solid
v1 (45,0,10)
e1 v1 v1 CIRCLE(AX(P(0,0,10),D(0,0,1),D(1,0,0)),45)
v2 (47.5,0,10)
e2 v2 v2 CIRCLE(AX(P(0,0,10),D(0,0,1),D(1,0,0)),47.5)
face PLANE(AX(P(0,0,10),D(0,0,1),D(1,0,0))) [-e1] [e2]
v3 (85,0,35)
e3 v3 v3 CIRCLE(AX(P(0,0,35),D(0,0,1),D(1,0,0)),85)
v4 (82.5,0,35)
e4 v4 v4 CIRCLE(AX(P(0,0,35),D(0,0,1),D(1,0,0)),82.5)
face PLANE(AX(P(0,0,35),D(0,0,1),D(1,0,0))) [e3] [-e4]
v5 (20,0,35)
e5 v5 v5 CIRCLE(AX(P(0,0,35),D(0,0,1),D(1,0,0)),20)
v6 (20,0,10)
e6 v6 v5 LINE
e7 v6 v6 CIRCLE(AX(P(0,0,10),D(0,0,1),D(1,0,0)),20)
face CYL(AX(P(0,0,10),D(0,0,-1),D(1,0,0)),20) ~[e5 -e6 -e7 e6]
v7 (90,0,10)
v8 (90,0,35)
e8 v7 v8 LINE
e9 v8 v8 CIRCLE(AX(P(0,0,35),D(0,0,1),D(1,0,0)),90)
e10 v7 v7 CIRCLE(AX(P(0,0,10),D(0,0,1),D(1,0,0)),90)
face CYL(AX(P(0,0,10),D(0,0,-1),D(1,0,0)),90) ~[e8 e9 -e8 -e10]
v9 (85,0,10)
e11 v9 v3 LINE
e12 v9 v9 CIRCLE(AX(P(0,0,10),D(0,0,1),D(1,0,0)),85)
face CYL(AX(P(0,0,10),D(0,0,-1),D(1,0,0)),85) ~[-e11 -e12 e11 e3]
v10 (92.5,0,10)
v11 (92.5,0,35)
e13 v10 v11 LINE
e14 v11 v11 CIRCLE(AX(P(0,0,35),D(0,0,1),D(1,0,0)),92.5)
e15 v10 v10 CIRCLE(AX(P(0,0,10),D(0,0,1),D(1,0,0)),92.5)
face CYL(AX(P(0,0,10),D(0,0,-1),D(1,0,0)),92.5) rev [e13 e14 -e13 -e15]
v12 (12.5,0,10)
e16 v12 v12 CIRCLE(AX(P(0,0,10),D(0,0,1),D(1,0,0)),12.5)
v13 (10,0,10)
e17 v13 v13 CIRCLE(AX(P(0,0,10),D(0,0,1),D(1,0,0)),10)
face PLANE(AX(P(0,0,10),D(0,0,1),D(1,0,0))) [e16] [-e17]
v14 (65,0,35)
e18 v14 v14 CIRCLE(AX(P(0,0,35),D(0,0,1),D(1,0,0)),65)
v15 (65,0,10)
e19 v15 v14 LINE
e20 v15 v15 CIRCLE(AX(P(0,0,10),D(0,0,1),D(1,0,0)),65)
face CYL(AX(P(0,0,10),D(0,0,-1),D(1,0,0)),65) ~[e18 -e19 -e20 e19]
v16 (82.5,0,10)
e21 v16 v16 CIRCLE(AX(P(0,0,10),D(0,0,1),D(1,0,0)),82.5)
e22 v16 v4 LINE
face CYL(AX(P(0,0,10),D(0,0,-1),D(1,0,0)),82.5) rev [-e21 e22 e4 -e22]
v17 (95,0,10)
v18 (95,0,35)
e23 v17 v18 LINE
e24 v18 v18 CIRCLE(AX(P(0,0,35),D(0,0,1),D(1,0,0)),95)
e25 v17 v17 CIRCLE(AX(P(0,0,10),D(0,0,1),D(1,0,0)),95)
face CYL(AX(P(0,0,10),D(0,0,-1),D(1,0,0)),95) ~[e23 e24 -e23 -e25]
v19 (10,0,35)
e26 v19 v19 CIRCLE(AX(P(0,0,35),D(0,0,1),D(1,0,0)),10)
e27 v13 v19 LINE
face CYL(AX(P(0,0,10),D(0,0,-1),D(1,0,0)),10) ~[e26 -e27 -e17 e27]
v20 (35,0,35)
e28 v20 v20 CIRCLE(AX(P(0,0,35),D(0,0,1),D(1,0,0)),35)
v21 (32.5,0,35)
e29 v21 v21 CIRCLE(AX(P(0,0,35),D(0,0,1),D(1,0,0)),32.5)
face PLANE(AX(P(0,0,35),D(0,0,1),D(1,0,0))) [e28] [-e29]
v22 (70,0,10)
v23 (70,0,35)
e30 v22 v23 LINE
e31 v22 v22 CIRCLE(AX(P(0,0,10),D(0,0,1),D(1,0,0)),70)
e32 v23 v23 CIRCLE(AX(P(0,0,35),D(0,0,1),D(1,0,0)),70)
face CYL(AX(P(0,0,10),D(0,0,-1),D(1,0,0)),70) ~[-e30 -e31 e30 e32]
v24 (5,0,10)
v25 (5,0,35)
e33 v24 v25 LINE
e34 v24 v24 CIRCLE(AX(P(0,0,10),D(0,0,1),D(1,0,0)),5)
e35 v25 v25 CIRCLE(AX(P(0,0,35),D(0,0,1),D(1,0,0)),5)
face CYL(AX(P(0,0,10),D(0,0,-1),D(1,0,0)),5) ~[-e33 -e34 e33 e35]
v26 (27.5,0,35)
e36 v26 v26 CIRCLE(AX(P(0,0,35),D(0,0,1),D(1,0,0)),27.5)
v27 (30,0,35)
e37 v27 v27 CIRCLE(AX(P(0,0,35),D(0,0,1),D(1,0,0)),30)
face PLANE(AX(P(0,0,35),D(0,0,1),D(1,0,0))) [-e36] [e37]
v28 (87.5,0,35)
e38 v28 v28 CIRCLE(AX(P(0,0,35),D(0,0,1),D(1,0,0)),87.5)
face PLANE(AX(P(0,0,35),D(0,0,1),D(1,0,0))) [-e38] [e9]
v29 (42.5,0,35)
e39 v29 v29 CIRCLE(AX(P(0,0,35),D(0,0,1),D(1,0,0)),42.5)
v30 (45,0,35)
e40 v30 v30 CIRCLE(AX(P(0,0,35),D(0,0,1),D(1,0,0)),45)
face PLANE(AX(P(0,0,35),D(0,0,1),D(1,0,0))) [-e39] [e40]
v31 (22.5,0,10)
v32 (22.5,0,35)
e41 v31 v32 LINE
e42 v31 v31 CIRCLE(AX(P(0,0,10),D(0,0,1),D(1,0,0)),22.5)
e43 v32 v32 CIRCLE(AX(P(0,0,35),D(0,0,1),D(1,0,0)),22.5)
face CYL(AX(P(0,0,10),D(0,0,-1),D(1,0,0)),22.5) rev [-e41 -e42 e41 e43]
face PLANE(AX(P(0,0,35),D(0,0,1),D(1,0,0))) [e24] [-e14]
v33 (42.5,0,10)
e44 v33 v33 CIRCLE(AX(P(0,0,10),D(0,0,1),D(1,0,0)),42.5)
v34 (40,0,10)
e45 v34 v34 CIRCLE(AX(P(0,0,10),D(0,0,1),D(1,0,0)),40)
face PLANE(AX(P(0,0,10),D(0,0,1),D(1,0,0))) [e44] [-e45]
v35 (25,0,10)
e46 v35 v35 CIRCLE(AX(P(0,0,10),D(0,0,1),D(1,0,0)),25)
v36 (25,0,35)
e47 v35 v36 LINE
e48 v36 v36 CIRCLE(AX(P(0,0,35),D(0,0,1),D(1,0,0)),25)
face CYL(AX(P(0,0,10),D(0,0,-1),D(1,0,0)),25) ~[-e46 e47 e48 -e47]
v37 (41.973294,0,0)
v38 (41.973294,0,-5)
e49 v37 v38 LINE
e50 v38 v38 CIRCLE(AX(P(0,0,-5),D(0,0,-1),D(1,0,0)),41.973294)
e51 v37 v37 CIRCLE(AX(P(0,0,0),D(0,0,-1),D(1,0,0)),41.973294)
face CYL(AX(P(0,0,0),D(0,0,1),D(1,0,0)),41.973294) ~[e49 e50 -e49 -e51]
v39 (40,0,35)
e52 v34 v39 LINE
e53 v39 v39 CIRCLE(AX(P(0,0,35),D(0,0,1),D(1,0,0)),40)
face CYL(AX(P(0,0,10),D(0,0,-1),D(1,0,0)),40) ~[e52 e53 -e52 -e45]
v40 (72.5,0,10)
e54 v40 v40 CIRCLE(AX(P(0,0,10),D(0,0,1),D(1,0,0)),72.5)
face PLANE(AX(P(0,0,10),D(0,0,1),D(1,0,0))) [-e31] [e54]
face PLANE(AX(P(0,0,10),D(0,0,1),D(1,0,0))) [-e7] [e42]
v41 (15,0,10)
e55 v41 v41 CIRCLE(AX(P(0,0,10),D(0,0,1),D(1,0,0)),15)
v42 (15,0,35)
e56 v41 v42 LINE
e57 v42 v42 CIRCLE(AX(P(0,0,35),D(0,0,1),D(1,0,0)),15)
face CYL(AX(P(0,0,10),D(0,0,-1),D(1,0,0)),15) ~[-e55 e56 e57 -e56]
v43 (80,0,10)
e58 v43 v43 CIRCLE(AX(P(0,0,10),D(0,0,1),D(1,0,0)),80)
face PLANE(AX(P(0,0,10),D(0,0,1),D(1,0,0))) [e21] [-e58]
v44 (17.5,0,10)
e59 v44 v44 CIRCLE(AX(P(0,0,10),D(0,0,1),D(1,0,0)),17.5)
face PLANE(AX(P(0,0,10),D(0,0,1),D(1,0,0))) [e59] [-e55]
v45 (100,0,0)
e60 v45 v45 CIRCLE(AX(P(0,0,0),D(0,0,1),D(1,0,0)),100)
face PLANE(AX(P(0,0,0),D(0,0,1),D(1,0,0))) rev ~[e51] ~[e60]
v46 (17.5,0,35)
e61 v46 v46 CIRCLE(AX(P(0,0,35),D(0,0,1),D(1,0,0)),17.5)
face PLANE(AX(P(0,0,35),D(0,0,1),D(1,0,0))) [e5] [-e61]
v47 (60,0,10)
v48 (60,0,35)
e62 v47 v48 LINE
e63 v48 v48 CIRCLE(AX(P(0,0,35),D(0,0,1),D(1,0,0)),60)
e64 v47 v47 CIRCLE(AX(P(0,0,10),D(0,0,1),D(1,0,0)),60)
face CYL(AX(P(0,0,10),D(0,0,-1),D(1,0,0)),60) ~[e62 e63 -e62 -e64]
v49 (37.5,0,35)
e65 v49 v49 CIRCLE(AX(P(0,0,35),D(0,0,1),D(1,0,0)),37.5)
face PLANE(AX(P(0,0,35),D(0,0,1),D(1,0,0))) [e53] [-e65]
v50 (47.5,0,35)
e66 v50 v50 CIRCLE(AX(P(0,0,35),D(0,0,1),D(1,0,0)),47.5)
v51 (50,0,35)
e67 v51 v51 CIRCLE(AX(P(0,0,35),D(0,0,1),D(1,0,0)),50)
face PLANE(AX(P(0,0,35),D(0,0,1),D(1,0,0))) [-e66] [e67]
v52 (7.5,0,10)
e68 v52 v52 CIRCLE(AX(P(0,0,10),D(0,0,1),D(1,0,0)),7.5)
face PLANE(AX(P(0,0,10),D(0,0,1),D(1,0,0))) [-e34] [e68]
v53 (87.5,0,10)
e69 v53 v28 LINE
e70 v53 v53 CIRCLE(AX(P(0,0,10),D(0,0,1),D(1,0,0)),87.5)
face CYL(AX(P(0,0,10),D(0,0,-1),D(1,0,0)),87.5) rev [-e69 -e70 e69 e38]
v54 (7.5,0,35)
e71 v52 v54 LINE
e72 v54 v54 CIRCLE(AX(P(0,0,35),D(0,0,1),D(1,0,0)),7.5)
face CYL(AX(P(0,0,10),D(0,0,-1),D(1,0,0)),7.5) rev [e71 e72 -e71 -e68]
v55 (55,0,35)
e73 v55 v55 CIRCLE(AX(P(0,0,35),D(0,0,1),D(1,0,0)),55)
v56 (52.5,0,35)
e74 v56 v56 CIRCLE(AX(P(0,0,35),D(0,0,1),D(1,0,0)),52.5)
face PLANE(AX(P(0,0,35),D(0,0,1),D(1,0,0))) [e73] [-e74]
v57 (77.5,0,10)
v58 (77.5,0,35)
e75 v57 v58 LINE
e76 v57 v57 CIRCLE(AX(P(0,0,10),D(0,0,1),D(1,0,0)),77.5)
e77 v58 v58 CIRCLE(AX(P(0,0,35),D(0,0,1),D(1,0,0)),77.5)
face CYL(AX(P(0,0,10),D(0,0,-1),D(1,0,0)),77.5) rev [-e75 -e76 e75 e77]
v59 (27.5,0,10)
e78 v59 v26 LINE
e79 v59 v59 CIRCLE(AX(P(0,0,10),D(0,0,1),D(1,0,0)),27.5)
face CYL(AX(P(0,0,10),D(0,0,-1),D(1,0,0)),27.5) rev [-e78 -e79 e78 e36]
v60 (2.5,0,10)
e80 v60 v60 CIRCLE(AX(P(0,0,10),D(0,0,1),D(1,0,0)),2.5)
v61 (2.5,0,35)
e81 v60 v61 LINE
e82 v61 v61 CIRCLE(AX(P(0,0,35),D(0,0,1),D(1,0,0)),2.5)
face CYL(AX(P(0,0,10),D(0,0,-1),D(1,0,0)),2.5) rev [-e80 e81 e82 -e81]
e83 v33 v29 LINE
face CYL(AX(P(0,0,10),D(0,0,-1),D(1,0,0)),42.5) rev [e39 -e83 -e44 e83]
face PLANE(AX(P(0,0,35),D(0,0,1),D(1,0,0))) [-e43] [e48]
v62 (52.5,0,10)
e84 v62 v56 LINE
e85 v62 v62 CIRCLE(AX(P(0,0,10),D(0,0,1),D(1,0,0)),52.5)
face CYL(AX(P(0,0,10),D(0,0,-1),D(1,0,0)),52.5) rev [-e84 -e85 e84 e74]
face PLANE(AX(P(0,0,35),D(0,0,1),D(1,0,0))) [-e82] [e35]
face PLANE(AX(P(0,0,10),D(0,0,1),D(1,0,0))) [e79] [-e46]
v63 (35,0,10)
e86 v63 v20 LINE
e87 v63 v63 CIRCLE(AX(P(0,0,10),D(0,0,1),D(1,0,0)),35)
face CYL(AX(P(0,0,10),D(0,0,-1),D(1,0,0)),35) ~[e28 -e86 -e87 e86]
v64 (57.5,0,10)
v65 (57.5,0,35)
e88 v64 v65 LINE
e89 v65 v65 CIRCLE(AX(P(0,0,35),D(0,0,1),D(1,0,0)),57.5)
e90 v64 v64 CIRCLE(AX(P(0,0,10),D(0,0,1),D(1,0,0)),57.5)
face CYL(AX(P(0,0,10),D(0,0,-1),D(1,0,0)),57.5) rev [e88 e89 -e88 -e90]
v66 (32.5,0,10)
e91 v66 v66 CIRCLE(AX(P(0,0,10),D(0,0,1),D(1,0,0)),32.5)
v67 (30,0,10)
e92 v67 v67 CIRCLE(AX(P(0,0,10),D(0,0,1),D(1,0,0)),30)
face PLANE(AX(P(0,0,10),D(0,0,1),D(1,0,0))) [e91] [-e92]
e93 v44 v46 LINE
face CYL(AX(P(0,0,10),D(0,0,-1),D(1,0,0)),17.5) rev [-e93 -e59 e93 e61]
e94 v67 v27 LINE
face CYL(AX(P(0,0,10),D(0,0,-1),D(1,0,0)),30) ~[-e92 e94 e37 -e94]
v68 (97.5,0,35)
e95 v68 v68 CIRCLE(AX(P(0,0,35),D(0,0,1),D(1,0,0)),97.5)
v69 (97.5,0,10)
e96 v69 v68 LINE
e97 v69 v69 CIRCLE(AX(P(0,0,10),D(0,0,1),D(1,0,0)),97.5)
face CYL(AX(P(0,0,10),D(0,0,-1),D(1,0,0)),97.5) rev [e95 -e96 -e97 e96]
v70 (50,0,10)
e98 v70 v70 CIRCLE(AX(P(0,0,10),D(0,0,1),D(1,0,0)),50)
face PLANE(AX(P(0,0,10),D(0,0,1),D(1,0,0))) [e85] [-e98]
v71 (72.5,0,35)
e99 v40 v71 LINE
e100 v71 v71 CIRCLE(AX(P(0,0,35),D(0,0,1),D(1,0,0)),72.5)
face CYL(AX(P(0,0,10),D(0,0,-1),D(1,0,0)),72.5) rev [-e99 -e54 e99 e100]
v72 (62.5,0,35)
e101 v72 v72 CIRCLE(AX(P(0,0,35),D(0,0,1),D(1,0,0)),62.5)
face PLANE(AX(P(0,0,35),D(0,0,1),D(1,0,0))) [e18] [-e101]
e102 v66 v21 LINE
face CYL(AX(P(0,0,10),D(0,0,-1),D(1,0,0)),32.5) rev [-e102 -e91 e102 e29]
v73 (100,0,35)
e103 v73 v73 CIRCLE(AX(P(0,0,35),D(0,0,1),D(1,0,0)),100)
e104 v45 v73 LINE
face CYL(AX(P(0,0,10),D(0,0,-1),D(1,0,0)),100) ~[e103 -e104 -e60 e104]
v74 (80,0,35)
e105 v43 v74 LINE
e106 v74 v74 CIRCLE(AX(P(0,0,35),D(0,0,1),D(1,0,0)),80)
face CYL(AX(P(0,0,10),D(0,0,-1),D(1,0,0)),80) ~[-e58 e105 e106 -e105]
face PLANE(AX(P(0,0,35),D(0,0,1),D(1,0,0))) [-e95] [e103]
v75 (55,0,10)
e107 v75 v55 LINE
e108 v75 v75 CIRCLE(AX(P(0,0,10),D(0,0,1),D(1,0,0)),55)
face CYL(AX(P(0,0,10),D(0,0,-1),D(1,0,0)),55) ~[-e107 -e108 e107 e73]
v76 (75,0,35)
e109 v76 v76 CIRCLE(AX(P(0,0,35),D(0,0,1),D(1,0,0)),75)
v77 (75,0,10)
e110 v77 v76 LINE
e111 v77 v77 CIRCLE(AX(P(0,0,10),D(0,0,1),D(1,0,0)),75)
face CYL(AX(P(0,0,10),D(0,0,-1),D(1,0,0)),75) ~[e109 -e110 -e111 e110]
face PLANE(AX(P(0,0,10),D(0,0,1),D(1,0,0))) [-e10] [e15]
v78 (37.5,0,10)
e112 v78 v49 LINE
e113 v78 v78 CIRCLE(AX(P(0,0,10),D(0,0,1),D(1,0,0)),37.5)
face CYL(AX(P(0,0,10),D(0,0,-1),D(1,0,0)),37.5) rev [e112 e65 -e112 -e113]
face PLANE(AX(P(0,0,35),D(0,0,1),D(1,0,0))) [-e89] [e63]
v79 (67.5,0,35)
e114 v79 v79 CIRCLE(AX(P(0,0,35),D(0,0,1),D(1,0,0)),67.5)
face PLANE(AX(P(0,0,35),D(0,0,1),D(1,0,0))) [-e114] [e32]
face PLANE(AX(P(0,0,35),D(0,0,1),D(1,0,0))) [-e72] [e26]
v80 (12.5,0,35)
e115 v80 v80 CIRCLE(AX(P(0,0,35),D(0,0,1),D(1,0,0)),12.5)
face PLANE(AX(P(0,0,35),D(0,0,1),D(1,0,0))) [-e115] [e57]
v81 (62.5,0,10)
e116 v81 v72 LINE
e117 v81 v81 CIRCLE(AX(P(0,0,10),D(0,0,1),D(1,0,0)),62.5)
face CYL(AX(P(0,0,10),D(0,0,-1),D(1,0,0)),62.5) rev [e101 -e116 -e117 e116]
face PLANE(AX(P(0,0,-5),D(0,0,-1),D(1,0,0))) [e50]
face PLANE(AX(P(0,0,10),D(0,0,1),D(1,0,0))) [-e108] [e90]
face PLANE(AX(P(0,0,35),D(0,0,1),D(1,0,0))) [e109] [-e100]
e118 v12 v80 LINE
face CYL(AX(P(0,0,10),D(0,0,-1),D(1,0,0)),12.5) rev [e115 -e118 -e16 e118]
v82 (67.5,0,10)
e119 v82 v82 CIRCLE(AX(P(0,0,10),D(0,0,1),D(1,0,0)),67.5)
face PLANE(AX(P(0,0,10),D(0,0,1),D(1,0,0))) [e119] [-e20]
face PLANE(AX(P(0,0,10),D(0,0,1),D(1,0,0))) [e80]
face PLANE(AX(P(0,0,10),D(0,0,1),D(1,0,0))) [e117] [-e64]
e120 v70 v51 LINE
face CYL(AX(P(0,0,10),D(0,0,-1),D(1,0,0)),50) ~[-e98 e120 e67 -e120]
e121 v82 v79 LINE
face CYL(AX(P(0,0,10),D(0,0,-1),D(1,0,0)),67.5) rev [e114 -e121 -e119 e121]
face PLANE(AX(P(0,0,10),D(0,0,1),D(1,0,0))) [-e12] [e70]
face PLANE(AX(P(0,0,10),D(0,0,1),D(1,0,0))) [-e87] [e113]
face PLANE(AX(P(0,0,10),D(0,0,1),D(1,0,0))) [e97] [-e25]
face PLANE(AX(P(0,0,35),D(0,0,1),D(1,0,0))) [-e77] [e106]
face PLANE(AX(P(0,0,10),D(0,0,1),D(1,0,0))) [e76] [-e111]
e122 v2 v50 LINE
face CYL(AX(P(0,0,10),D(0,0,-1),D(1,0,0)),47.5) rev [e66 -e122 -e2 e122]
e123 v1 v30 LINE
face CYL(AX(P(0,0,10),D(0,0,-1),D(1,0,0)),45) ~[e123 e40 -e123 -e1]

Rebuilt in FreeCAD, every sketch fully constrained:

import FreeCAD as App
import Part
import Sketcher
from FreeCAD import Vector

doc = App.newDocument("Part")
body = doc.addObject("PartDesign::Body", "Body")

# Sketch on XY plane
sketch1 = body.newObject("Sketcher::SketchObject", "Sketch")
sketch1.AttachmentSupport = (doc.getObject("XY_Plane"), [""])
sketch1.MapMode = "FlatFace"
sketch1.addGeometry(Part.Circle(Vector(0, 0, 0), Vector(0, 0, 1), 100), False)
sketch1.addConstraint([
    Sketcher.Constraint("Coincident", 0, 3, -1, 1),
    Sketcher.Constraint("Diameter", 0, 200.0),
])
pad1 = body.newObject("PartDesign::Pad", "Pad")
pad1.Profile = sketch1
pad1.Length = 10

# Sketch on XY plane
sketch2 = body.newObject("Sketcher::SketchObject", "Sketch001")
sketch2.AttachmentSupport = (doc.getObject("XY_Plane"), [""])
sketch2.MapMode = "FlatFace"
sketch2.AttachmentOffset = App.Placement(Vector(0, 0, 10), App.Rotation())
sketch2.addGeometry([
    Part.Circle(Vector(0, 0, 0), Vector(0, 0, 1), 100),  # 0
    Part.Circle(Vector(0, 0, 0), Vector(0, 0, 1), 97.5),  # 1
    Part.Circle(Vector(0, 0, 0), Vector(0, 0, 1), 95),  # 2
    Part.Circle(Vector(0, 0, 0), Vector(0, 0, 1), 92.5),  # 3
    Part.Circle(Vector(0, 0, 0), Vector(0, 0, 1), 90),  # 4
    Part.Circle(Vector(0, 0, 0), Vector(0, 0, 1), 87.5),  # 5
    Part.Circle(Vector(0, 0, 0), Vector(0, 0, 1), 85),  # 6
    Part.Circle(Vector(0, 0, 0), Vector(0, 0, 1), 82.5),  # 7
    Part.Circle(Vector(0, 0, 0), Vector(0, 0, 1), 80),  # 8
    Part.Circle(Vector(0, 0, 0), Vector(0, 0, 1), 77.5),  # 9
    Part.Circle(Vector(0, 0, 0), Vector(0, 0, 1), 75),  # 10
    Part.Circle(Vector(0, 0, 0), Vector(0, 0, 1), 72.5),  # 11
    Part.Circle(Vector(0, 0, 0), Vector(0, 0, 1), 70),  # 12
    Part.Circle(Vector(0, 0, 0), Vector(0, 0, 1), 67.5),  # 13
    Part.Circle(Vector(0, 0, 0), Vector(0, 0, 1), 65),  # 14
    Part.Circle(Vector(0, 0, 0), Vector(0, 0, 1), 62.5),  # 15
    Part.Circle(Vector(0, 0, 0), Vector(0, 0, 1), 60),  # 16
    Part.Circle(Vector(0, 0, 0), Vector(0, 0, 1), 57.5),  # 17
    Part.Circle(Vector(0, 0, 0), Vector(0, 0, 1), 55),  # 18
    Part.Circle(Vector(0, 0, 0), Vector(0, 0, 1), 52.5),  # 19
    Part.Circle(Vector(0, 0, 0), Vector(0, 0, 1), 50),  # 20
    Part.Circle(Vector(0, 0, 0), Vector(0, 0, 1), 47.5),  # 21
    Part.Circle(Vector(0, 0, 0), Vector(0, 0, 1), 45),  # 22
    Part.Circle(Vector(0, 0, 0), Vector(0, 0, 1), 42.5),  # 23
    Part.Circle(Vector(0, 0, 0), Vector(0, 0, 1), 40),  # 24
    Part.Circle(Vector(0, 0, 0), Vector(0, 0, 1), 37.5),  # 25
    Part.Circle(Vector(0, 0, 0), Vector(0, 0, 1), 35),  # 26
    Part.Circle(Vector(0, 0, 0), Vector(0, 0, 1), 32.5),  # 27
    Part.Circle(Vector(0, 0, 0), Vector(0, 0, 1), 30),  # 28
    Part.Circle(Vector(0, 0, 0), Vector(0, 0, 1), 27.5),  # 29
    Part.Circle(Vector(0, 0, 0), Vector(0, 0, 1), 25),  # 30
    Part.Circle(Vector(0, 0, 0), Vector(0, 0, 1), 22.5),  # 31
    Part.Circle(Vector(0, 0, 0), Vector(0, 0, 1), 20),  # 32
    Part.Circle(Vector(0, 0, 0), Vector(0, 0, 1), 17.5),  # 33
    Part.Circle(Vector(0, 0, 0), Vector(0, 0, 1), 15),  # 34
    Part.Circle(Vector(0, 0, 0), Vector(0, 0, 1), 12.5),  # 35
    Part.Circle(Vector(0, 0, 0), Vector(0, 0, 1), 10),  # 36
    Part.Circle(Vector(0, 0, 0), Vector(0, 0, 1), 7.5),  # 37
    Part.Circle(Vector(0, 0, 0), Vector(0, 0, 1), 5),  # 38
    Part.Circle(Vector(0, 0, 0), Vector(0, 0, 1), 2.5),  # 39
], False)
sketch2.addConstraint([
    Sketcher.Constraint("Coincident", 0, 3, -1, 1),
    Sketcher.Constraint("Coincident", 1, 3, -1, 1),
    Sketcher.Constraint("Coincident", 2, 3, -1, 1),
    Sketcher.Constraint("Coincident", 3, 3, -1, 1),
    Sketcher.Constraint("Coincident", 4, 3, -1, 1),
    Sketcher.Constraint("Coincident", 5, 3, -1, 1),
    Sketcher.Constraint("Coincident", 6, 3, -1, 1),
    Sketcher.Constraint("Coincident", 7, 3, -1, 1),
    Sketcher.Constraint("Coincident", 8, 3, -1, 1),
    Sketcher.Constraint("Coincident", 9, 3, -1, 1),
    Sketcher.Constraint("Coincident", 10, 3, -1, 1),
    Sketcher.Constraint("Coincident", 11, 3, -1, 1),
    Sketcher.Constraint("Coincident", 12, 3, -1, 1),
    Sketcher.Constraint("Coincident", 13, 3, -1, 1),
    Sketcher.Constraint("Coincident", 14, 3, -1, 1),
    Sketcher.Constraint("Coincident", 15, 3, -1, 1),
    Sketcher.Constraint("Coincident", 16, 3, -1, 1),
    Sketcher.Constraint("Coincident", 17, 3, -1, 1),
    Sketcher.Constraint("Coincident", 18, 3, -1, 1),
    Sketcher.Constraint("Coincident", 19, 3, -1, 1),
    Sketcher.Constraint("Coincident", 20, 3, -1, 1),
    Sketcher.Constraint("Coincident", 21, 3, -1, 1),
    Sketcher.Constraint("Coincident", 22, 3, -1, 1),
    Sketcher.Constraint("Coincident", 23, 3, -1, 1),
    Sketcher.Constraint("Coincident", 24, 3, -1, 1),
    Sketcher.Constraint("Coincident", 25, 3, -1, 1),
    Sketcher.Constraint("Coincident", 26, 3, -1, 1),
    Sketcher.Constraint("Coincident", 27, 3, -1, 1),
    Sketcher.Constraint("Coincident", 28, 3, -1, 1),
    Sketcher.Constraint("Coincident", 29, 3, -1, 1),
    Sketcher.Constraint("Coincident", 30, 3, -1, 1),
    Sketcher.Constraint("Coincident", 31, 3, -1, 1),
    Sketcher.Constraint("Coincident", 32, 3, -1, 1),
    Sketcher.Constraint("Coincident", 33, 3, -1, 1),
    Sketcher.Constraint("Coincident", 34, 3, -1, 1),
    Sketcher.Constraint("Coincident", 35, 3, -1, 1),
    Sketcher.Constraint("Coincident", 36, 3, -1, 1),
    Sketcher.Constraint("Coincident", 37, 3, -1, 1),
    Sketcher.Constraint("Coincident", 38, 3, -1, 1),
    Sketcher.Constraint("Coincident", 39, 3, -1, 1),
    Sketcher.Constraint("Diameter", 0, 200.0),
    Sketcher.Constraint("Diameter", 1, 195.0),
    Sketcher.Constraint("Diameter", 2, 190.0),
    Sketcher.Constraint("Diameter", 3, 185.0),
    Sketcher.Constraint("Diameter", 4, 180.0),
    Sketcher.Constraint("Diameter", 5, 175.0),
    Sketcher.Constraint("Diameter", 6, 170.0),
    Sketcher.Constraint("Diameter", 7, 165.0),
    Sketcher.Constraint("Diameter", 8, 160.0),
    Sketcher.Constraint("Diameter", 9, 155.0),
    Sketcher.Constraint("Diameter", 10, 150.0),
    Sketcher.Constraint("Diameter", 11, 145.0),
    Sketcher.Constraint("Diameter", 12, 140.0),
    Sketcher.Constraint("Diameter", 13, 135.0),
    Sketcher.Constraint("Diameter", 14, 130.0),
    Sketcher.Constraint("Diameter", 15, 125.0),
    Sketcher.Constraint("Diameter", 16, 120.0),
    Sketcher.Constraint("Diameter", 17, 115.0),
    Sketcher.Constraint("Diameter", 18, 110.0),
    Sketcher.Constraint("Diameter", 19, 105.0),
    Sketcher.Constraint("Diameter", 20, 100.0),
    Sketcher.Constraint("Diameter", 21, 95.0),
    Sketcher.Constraint("Diameter", 22, 90.0),
    Sketcher.Constraint("Diameter", 23, 85.0),
    Sketcher.Constraint("Diameter", 24, 80.0),
    Sketcher.Constraint("Diameter", 25, 75.0),
    Sketcher.Constraint("Diameter", 26, 70.0),
    Sketcher.Constraint("Diameter", 27, 65.0),
    Sketcher.Constraint("Diameter", 28, 60.0),
    Sketcher.Constraint("Diameter", 29, 55.0),
    Sketcher.Constraint("Diameter", 30, 50.0),
    Sketcher.Constraint("Diameter", 31, 45.0),
    Sketcher.Constraint("Diameter", 32, 40.0),
    Sketcher.Constraint("Diameter", 33, 35.0),
    Sketcher.Constraint("Diameter", 34, 30.0),
    Sketcher.Constraint("Diameter", 35, 25.0),
    Sketcher.Constraint("Diameter", 36, 20.0),
    Sketcher.Constraint("Diameter", 37, 15.0),
    Sketcher.Constraint("Diameter", 38, 10.0),
    Sketcher.Constraint("Diameter", 39, 5.0),
])
pad2 = body.newObject("PartDesign::Pad", "Pad001")
pad2.Profile = sketch2
pad2.Length = 25

# Sketch on XY plane
sketch3 = body.newObject("Sketcher::SketchObject", "Sketch002")
sketch3.AttachmentSupport = (doc.getObject("XY_Plane"), [""])
sketch3.MapMode = "FlatFace"
sketch3.addGeometry(Part.Circle(Vector(0, 0, 0), Vector(0, 0, 1), 42), False)
sketch3.addConstraint([
    Sketcher.Constraint("Coincident", 0, 3, -1, 1),
    Sketcher.Constraint("Diameter", 0, 83.946588),
])
pad3 = body.newObject("PartDesign::Pad", "Pad002")
pad3.Profile = sketch3
pad3.Length = 5
pad3.Reversed = True

doc.recompute()
